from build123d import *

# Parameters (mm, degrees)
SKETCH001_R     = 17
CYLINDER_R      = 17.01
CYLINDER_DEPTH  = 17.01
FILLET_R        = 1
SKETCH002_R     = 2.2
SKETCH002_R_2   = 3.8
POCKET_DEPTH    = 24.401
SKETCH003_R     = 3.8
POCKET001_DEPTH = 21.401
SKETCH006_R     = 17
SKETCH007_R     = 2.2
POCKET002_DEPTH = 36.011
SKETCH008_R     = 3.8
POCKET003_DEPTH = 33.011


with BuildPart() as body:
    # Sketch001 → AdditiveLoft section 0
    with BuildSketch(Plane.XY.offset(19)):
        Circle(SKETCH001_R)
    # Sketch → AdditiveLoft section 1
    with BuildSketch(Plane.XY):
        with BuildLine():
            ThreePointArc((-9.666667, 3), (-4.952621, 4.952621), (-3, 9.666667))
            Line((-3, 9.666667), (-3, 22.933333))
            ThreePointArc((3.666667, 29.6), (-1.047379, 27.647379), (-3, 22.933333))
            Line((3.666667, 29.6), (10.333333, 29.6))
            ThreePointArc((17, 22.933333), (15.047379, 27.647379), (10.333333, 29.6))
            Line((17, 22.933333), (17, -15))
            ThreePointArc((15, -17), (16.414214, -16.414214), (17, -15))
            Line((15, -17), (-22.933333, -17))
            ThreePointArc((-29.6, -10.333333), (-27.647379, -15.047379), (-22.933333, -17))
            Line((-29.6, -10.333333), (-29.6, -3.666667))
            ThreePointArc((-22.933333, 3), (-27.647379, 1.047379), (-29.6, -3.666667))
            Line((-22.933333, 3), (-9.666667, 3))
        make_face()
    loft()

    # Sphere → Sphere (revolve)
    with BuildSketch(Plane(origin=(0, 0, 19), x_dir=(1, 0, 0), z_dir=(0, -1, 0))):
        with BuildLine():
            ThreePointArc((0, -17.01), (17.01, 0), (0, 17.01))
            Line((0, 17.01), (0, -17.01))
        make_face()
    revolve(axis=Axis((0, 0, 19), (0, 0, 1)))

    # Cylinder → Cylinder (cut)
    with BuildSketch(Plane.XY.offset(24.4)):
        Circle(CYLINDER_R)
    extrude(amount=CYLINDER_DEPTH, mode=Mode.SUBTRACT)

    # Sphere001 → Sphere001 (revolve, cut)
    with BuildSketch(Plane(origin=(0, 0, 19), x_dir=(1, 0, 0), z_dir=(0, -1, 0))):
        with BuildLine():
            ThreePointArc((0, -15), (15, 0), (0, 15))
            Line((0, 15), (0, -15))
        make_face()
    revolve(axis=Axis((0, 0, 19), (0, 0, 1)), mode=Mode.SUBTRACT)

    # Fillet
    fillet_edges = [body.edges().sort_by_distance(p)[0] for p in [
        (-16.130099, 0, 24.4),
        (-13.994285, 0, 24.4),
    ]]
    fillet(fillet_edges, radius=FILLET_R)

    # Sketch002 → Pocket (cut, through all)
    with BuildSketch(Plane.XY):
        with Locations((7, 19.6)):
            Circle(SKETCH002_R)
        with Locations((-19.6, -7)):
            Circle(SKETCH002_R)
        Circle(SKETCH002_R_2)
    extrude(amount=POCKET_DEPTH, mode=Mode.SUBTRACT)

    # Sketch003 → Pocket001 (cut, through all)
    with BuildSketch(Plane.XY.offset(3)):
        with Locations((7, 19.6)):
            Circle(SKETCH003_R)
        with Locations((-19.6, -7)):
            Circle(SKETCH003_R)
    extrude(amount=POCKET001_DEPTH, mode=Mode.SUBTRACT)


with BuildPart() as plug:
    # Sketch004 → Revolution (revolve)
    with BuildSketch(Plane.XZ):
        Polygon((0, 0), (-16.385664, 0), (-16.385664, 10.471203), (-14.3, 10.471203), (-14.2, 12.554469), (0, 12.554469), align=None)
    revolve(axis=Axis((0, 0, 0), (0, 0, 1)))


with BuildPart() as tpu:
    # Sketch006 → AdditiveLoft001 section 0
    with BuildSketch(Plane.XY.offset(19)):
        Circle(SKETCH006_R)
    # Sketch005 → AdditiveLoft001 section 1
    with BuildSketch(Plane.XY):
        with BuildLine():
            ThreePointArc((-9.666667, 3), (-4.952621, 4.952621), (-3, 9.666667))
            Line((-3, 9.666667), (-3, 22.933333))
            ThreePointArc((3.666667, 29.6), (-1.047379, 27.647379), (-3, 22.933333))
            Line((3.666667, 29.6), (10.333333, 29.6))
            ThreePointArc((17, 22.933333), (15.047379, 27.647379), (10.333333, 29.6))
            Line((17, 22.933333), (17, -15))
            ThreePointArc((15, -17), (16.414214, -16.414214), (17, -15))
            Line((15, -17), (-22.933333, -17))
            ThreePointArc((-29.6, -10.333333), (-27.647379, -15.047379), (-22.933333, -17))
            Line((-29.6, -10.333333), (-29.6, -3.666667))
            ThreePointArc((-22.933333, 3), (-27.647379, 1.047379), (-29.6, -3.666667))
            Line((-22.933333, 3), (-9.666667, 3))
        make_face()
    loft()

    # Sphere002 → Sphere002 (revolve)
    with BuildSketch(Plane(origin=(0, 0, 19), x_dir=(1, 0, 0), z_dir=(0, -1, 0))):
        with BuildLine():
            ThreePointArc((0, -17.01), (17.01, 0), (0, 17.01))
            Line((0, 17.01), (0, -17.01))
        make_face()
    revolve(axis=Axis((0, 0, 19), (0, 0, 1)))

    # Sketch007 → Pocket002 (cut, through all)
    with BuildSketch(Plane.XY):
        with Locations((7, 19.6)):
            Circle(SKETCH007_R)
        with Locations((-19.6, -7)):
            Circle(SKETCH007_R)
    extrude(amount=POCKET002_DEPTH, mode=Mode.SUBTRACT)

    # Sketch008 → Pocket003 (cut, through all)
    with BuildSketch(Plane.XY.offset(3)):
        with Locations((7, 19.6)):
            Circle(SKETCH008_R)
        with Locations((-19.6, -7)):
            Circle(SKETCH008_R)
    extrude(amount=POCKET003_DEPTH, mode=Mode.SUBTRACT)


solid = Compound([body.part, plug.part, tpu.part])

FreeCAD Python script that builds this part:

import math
import FreeCAD as App
import Part
import Sketcher
Q = App.Units.Quantity


def edges_at(feature, points):
    """Names of the edges that pass closest to the given points."""
    edges = feature.Shape.Edges
    near = lambda p: min(range(len(edges)), key=lambda i: edges[i].distToShape(Part.Vertex(*p))[0])
    return sorted({f"Edge{near(p) + 1}" for p in points})


def add_polygon(sketch, points):
    """Adds a closed chain of lines whose ends are joined by coincident constraints."""
    first, n = sketch.GeometryCount, len(points)
    for a, b in zip(points, points[1:] + points[:1]):
        sketch.addGeometry(Part.LineSegment(App.Vector(*a, 0), App.Vector(*b, 0)), False)
    for i in range(n):
        sketch.addConstraint(Sketcher.Constraint("Coincident", first + i, 2, first + (i + 1) % n, 1))

doc = App.newDocument("Part")
params = doc.addObject("Spreadsheet::Sheet", "Params")
for row, (alias, value) in enumerate([
    ("sketch1_diameter", "34 mm"),
    ("sketch2_radius", "1.999999 mm"),
    ("sketch3_radius", "17.01 mm"),
    ("revolution_angle", "360 deg"),
    ("sketch4_diameter", "34.02 mm"),
    ("pocket1_length", "17.01 mm"),
    ("sketch5_radius", "15 mm"),
    ("groove_angle", "360 deg"),
    ("fillet_radius", "1 mm"),
    ("sketch6_diameter", "4.4 mm"),
    ("sketch6_diameter2", "7.6 mm"),
    ("sketch7_diameter", "7.6 mm"),
    ("sketch8_width", "14.2 mm"),
    ("revolution2_angle", "360 deg"),
    ("sketch9_diameter", "34 mm"),
    ("sketch10_radius", "1.999999 mm"),
    ("sketch11_radius", "17.01 mm"),
    ("revolution3_angle", "360 deg"),
    ("sketch12_diameter", "4.4 mm"),
    ("sketch13_diameter", "7.6 mm"),
], start=1):
    params.set(f"A{row}", alias)
    params.set(f"B{row}", "=" + value)
    params.setAlias(f"B{row}", alias)

body = doc.addObject("PartDesign::Body", "Body")

# Sketch on XY plane
sketch1 = doc.addObject("Sketcher::SketchObject", "Sketch")
body.addObject(sketch1)
sketch1.AttachmentSupport = (doc.XY_Plane, [""])
sketch1.MapMode = "FlatFace"
sketch1.AttachmentOffset = App.Placement(App.Vector(0, 0, 19), App.Rotation())
sketch1.addGeometry(Part.Circle(App.Vector(0, 0, 0), App.Vector(0, 0, 1), 17), False)
sketch1.addConstraint(Sketcher.Constraint("Coincident", 0, 3, -1, 1))
sketch1.addConstraint(Sketcher.Constraint("Diameter", 0, Q("34 mm")))
sketch1.setExpression("Constraints[1]", "Params.sketch1_diameter")

# Sketch on XY plane
sketch2 = doc.addObject("Sketcher::SketchObject", "Sketch001")
body.addObject(sketch2)
sketch2.AttachmentSupport = (doc.XY_Plane, [""])
sketch2.MapMode = "FlatFace"
sketch2.addGeometry(Part.ArcOfCircle(Part.Circle(App.Vector(-9.7, 9.7, 0), App.Vector(0, 0, 1), 6.7), math.radians(-90), math.radians(0)), False)
sketch2.addGeometry(Part.LineSegment(App.Vector(-9.7, 3, 0), App.Vector(-22.9, 3, 0)), False)
sketch2.addGeometry(Part.ArcOfCircle(Part.Circle(App.Vector(-22.9, -3.7, 0), App.Vector(0, 0, 1), 6.7), math.radians(90), math.radians(180)), False)
sketch2.addGeometry(Part.LineSegment(App.Vector(-29.6, -3.7, 0), App.Vector(-29.6, -10.3, 0)), False)
sketch2.addGeometry(Part.ArcOfCircle(Part.Circle(App.Vector(-22.9, -10.3, 0), App.Vector(0, 0, 1), 6.7), math.radians(180), math.radians(270)), False)
sketch2.addGeometry(Part.LineSegment(App.Vector(-22.9, -17, 0), App.Vector(15, -17, 0)), False)
sketch2.addGeometry(Part.ArcOfCircle(Part.Circle(App.Vector(15, -15, 0), App.Vector(0, 0, 1), 2), math.radians(-90), math.radians(0)), False)
sketch2.addGeometry(Part.LineSegment(App.Vector(17, -15, 0), App.Vector(17, 22.9, 0)), False)
sketch2.addGeometry(Part.ArcOfCircle(Part.Circle(App.Vector(10.3, 22.9, 0), App.Vector(0, 0, 1), 6.7), math.radians(0), math.radians(90)), False)
sketch2.addGeometry(Part.LineSegment(App.Vector(10.3, 29.6, 0), App.Vector(3.7, 29.6, 0)), False)
sketch2.addGeometry(Part.ArcOfCircle(Part.Circle(App.Vector(3.7, 22.9, 0), App.Vector(0, 0, 1), 6.7), math.radians(90), math.radians(180)), False)
sketch2.addGeometry(Part.LineSegment(App.Vector(-3, 22.9, 0), App.Vector(-3, 9.7, 0)), False)
sketch2.addConstraint(Sketcher.Constraint("Tangent", 0, 1, 1, 1))
sketch2.addConstraint(Sketcher.Constraint("Tangent", 1, 2, 2, 1))
sketch2.addConstraint(Sketcher.Constraint("Tangent", 2, 2, 3, 1))
sketch2.addConstraint(Sketcher.Constraint("Tangent", 3, 2, 4, 1))
sketch2.addConstraint(Sketcher.Constraint("Tangent", 4, 2, 5, 1))
sketch2.addConstraint(Sketcher.Constraint("Tangent", 5, 2, 6, 1))
sketch2.addConstraint(Sketcher.Constraint("Tangent", 6, 2, 7, 1))
sketch2.addConstraint(Sketcher.Constraint("Tangent", 7, 2, 8, 1))
sketch2.addConstraint(Sketcher.Constraint("Tangent", 8, 2, 9, 1))
sketch2.addConstraint(Sketcher.Constraint("Tangent", 9, 2, 10, 1))
sketch2.addConstraint(Sketcher.Constraint("Tangent", 10, 2, 11, 1))
sketch2.addConstraint(Sketcher.Constraint("Tangent", 11, 2, 0, 2))
sketch2.addConstraint(Sketcher.Constraint("Horizontal", 1))
sketch2.addConstraint(Sketcher.Constraint("Vertical", 3))
sketch2.addConstraint(Sketcher.Constraint("Horizontal", 5))
sketch2.addConstraint(Sketcher.Constraint("Vertical", 7))
sketch2.addConstraint(Sketcher.Constraint("Horizontal", 9))
sketch2.addConstraint(Sketcher.Constraint("Vertical", 11))
sketch2.addConstraint(Sketcher.Constraint("Equal", 0, 2))
sketch2.addConstraint(Sketcher.Constraint("Equal", 2, 4))
sketch2.addConstraint(Sketcher.Constraint("Equal", 4, 8))
sketch2.addConstraint(Sketcher.Constraint("Equal", 8, 10))
sketch2.addConstraint(Sketcher.Constraint("Equal", 9, 3))
sketch2.addConstraint(Sketcher.Constraint("Equal", 5, 7))
sketch2.addConstraint(Sketcher.Constraint("Radius", 6, Q("1.999999 mm")))
sketch2.addConstraint(Sketcher.Constraint("DistanceX", -1, 1, 6, 3, Q("15.000001 mm")))
sketch2.addConstraint(Sketcher.Constraint("DistanceY", 6, 3, -1, 1, Q("15.000001 mm")))
sketch2.addConstraint(Sketcher.Constraint("DistanceY", -1, 1, 0, 1, Q("3 mm")))
sketch2.addConstraint(Sketcher.Constraint("DistanceX", 2, 2, -1, 1, Q("29.6 mm")))
sketch2.addConstraint(Sketcher.Constraint("Radius", 0, Q("6.666665 mm")))
sketch2.setExpression("Constraints[24]", "Params.sketch2_radius")

additiveloft = doc.addObject("PartDesign::AdditiveLoft", "AdditiveLoft")
body.addObject(additiveloft)
additiveloft.Profile = sketch1
additiveloft.Sections = [sketch2]

# Sketch on XZ plane
sketch3 = doc.addObject("Sketcher::SketchObject", "Sketch002")
body.addObject(sketch3)
sketch3.AttachmentSupport = (doc.XZ_Plane, [""])
sketch3.MapMode = "FlatFace"
sketch3.addGeometry(Part.ArcOfCircle(Part.Circle(App.Vector(0, 19, 0), App.Vector(0, 0, 1), 17), math.radians(-90), math.radians(90)), False)
sketch3.addGeometry(Part.LineSegment(App.Vector(0, 36, 0), App.Vector(0, 2, 0)), False)
sketch3.addConstraint(Sketcher.Constraint("Coincident", 0, 1, 1, 2))
sketch3.addConstraint(Sketcher.Constraint("Coincident", 1, 1, 0, 2))
sketch3.addConstraint(Sketcher.Constraint("Vertical", 1))
sketch3.addConstraint(Sketcher.Constraint("PointOnObject", 0, 3, -2))
sketch3.addConstraint(Sketcher.Constraint("PointOnObject", 0, 1, -2))
sketch3.addConstraint(Sketcher.Constraint("Radius", 0, Q("17.01 mm")))
sketch3.addConstraint(Sketcher.Constraint("DistanceY", -1, 1, 0, 3, Q("19 mm")))
sketch3.setExpression("Constraints[5]", "Params.sketch3_radius")
revolution = doc.addObject("PartDesign::Revolution", "Revolution")
body.addObject(revolution)
revolution.Profile = sketch3
revolution.ReferenceAxis = (sketch3, ["V_Axis"])
revolution.setExpression("Angle", "Params.revolution_angle")

# Sketch on XY plane
sketch4 = doc.addObject("Sketcher::SketchObject", "Sketch003")
body.addObject(sketch4)
sketch4.AttachmentSupport = (doc.XY_Plane, [""])
sketch4.MapMode = "FlatFace"
sketch4.AttachmentOffset = App.Placement(App.Vector(0, 0, 24.4), App.Rotation())
sketch4.addGeometry(Part.Circle(App.Vector(0, 0, 0), App.Vector(0, 0, 1), 17), False)
sketch4.addConstraint(Sketcher.Constraint("Coincident", 0, 3, -1, 1))
sketch4.addConstraint(Sketcher.Constraint("Diameter", 0, Q("34.02 mm")))
sketch4.setExpression("Constraints[1]", "Params.sketch4_diameter")
pocket1 = doc.addObject("PartDesign::Pocket", "Pocket")
body.addObject(pocket1)
pocket1.Profile = sketch4
pocket1.setExpression("Length", "Params.pocket1_length")
pocket1.Reversed = True

# Sketch on XZ plane
sketch5 = doc.addObject("Sketcher::SketchObject", "Sketch004")
body.addObject(sketch5)
sketch5.AttachmentSupport = (doc.XZ_Plane, [""])
sketch5.MapMode = "FlatFace"
sketch5.addGeometry(Part.ArcOfCircle(Part.Circle(App.Vector(0, 19, 0), App.Vector(0, 0, 1), 15), math.radians(-90), math.radians(90)), False)
sketch5.addGeometry(Part.LineSegment(App.Vector(0, 34, 0), App.Vector(0, 4, 0)), False)
sketch5.addConstraint(Sketcher.Constraint("Coincident", 0, 1, 1, 2))
sketch5.addConstraint(Sketcher.Constraint("Coincident", 1, 1, 0, 2))
sketch5.addConstraint(Sketcher.Constraint("Vertical", 1))
sketch5.addConstraint(Sketcher.Constraint("PointOnObject", 0, 3, -2))
sketch5.addConstraint(Sketcher.Constraint("PointOnObject", 0, 1, -2))
sketch5.addConstraint(Sketcher.Constraint("Radius", 0, Q("15 mm")))
sketch5.addConstraint(Sketcher.Constraint("DistanceY", -1, 1, 0, 3, Q("19 mm")))
sketch5.setExpression("Constraints[5]", "Params.sketch5_radius")
groove = doc.addObject("PartDesign::Groove", "Groove")
body.addObject(groove)
groove.Profile = sketch5
groove.ReferenceAxis = (sketch5, ["V_Axis"])
groove.setExpression("Angle", "Params.groove_angle")
doc.recompute()

fillet = doc.addObject("PartDesign::Fillet", "Fillet")
body.addObject(fillet)
fillet.Base = (groove, edges_at(groove, [(-16.13, 0, 24.4), (-13.994, 0, 24.4)]))
fillet.setExpression("Radius", "Params.fillet_radius")

# Sketch on XY plane
sketch6 = doc.addObject("Sketcher::SketchObject", "Sketch005")
body.addObject(sketch6)
sketch6.AttachmentSupport = (doc.XY_Plane, [""])
sketch6.MapMode = "FlatFace"
sketch6.addGeometry(Part.Circle(App.Vector(7, 19.6, 0), App.Vector(0, 0, 1), 2.2), False)
sketch6.addGeometry(Part.Circle(App.Vector(-19.6, -7, 0), App.Vector(0, 0, 1), 2.2), False)
sketch6.addGeometry(Part.Circle(App.Vector(0, 0, 0), App.Vector(0, 0, 1), 3.8), False)
sketch6.addConstraint(Sketcher.Constraint("Coincident", 2, 3, -1, 1))
sketch6.addConstraint(Sketcher.Constraint("Equal", 0, 1))
sketch6.addConstraint(Sketcher.Constraint("Diameter", 0, Q("4.4 mm")))
sketch6.addConstraint(Sketcher.Constraint("Diameter", 2, Q("7.6 mm")))
sketch6.addConstraint(Sketcher.Constraint("DistanceX", -1, 1, 0, 3, Q("7 mm")))
sketch6.addConstraint(Sketcher.Constraint("DistanceY", 1, 3, -1, 1, Q("7 mm")))
sketch6.addConstraint(Sketcher.Constraint("DistanceY", -1, 1, 0, 3, Q("19.6 mm")))
sketch6.addConstraint(Sketcher.Constraint("DistanceX", 1, 3, -1, 1, Q("19.6 mm")))
sketch6.setExpression("Constraints[2]", "Params.sketch6_diameter")
sketch6.setExpression("Constraints[3]", "Params.sketch6_diameter2")
pocket2 = doc.addObject("PartDesign::Pocket", "Pocket001")
body.addObject(pocket2)
pocket2.Profile = sketch6
pocket2.Type = "ThroughAll"
pocket2.Reversed = True

# Sketch on XY plane
sketch7 = doc.addObject("Sketcher::SketchObject", "Sketch006")
body.addObject(sketch7)
sketch7.AttachmentSupport = (doc.XY_Plane, [""])
sketch7.MapMode = "FlatFace"
sketch7.AttachmentOffset = App.Placement(App.Vector(0, 0, 3), App.Rotation())
sketch7.addGeometry(Part.Circle(App.Vector(7, 19.6, 0), App.Vector(0, 0, 1), 3.8), False)
sketch7.addGeometry(Part.Circle(App.Vector(-19.6, -7, 0), App.Vector(0, 0, 1), 3.8), False)
sketch7.addConstraint(Sketcher.Constraint("Equal", 0, 1))
sketch7.addConstraint(Sketcher.Constraint("Diameter", 0, Q("7.6 mm")))
sketch7.addConstraint(Sketcher.Constraint("DistanceX", -1, 1, 0, 3, Q("7 mm")))
sketch7.addConstraint(Sketcher.Constraint("DistanceY", 1, 3, -1, 1, Q("7 mm")))
sketch7.addConstraint(Sketcher.Constraint("DistanceY", -1, 1, 0, 3, Q("19.6 mm")))
sketch7.addConstraint(Sketcher.Constraint("DistanceX", 1, 3, -1, 1, Q("19.6 mm")))
sketch7.setExpression("Constraints[1]", "Params.sketch7_diameter")
pocket3 = doc.addObject("PartDesign::Pocket", "Pocket002")
body.addObject(pocket3)
pocket3.Profile = sketch7
pocket3.Type = "ThroughAll"
pocket3.Reversed = True
body2 = doc.addObject("PartDesign::Body", "Body001")

# Sketch on XZ plane
sketch8 = doc.addObject("Sketcher::SketchObject", "Sketch007")
body2.addObject(sketch8)
sketch8.AttachmentSupport = (doc.getObject("XZ_Plane001"), [""])
sketch8.MapMode = "FlatFace"
add_polygon(sketch8, [(-16.4, 0), (0, 0), (0, 12.6), (-14.2, 12.6), (-14.3, 10.5), (-16.4, 10.5)])  # lines 0-5
sketch8.addConstraint(Sketcher.Constraint("Horizontal", 0))
sketch8.addConstraint(Sketcher.Constraint("Vertical", 1))
sketch8.addConstraint(Sketcher.Constraint("Horizontal", 2))
sketch8.addConstraint(Sketcher.Constraint("Horizontal", 4))
sketch8.addConstraint(Sketcher.Constraint("Vertical", 5))
sketch8.addConstraint(Sketcher.Constraint("Coincident", 0, 2, -1, 1))
sketch8.addConstraint(Sketcher.Constraint("DistanceX", 2, 2, 2, 1, Q("14.2 mm")))
sketch8.addConstraint(Sketcher.Constraint("DistanceX", 3, 2, -1, 1, Q("14.3 mm")))
sketch8.addConstraint(Sketcher.Constraint("DistanceY", 1, 1, 1, 2, Q("12.554469 mm")))
sketch8.addConstraint(Sketcher.Constraint("DistanceX", 0, 1, 0, 2, Q("16.385664 mm")))
sketch8.addConstraint(Sketcher.Constraint("DistanceY", 5, 2, 5, 1, Q("10.471203 mm")))
sketch8.setExpression("Constraints[12]", "Params.sketch8_width")
revolution2 = doc.addObject("PartDesign::Revolution", "Revolution001")
body2.addObject(revolution2)
revolution2.Profile = sketch8
revolution2.ReferenceAxis = (sketch8, ["V_Axis"])
revolution2.setExpression("Angle", "Params.revolution2_angle")
body3 = doc.addObject("PartDesign::Body", "Body002")

# Sketch on XY plane
sketch9 = doc.addObject("Sketcher::SketchObject", "Sketch008")
body3.addObject(sketch9)
sketch9.AttachmentSupport = (doc.getObject("XY_Plane002"), [""])
sketch9.MapMode = "FlatFace"
sketch9.AttachmentOffset = App.Placement(App.Vector(0, 0, 19), App.Rotation())
sketch9.addGeometry(Part.Circle(App.Vector(0, 0, 0), App.Vector(0, 0, 1), 17), False)
sketch9.addConstraint(Sketcher.Constraint("Coincident", 0, 3, -1, 1))
sketch9.addConstraint(Sketcher.Constraint("Diameter", 0, Q("34 mm")))
sketch9.setExpression("Constraints[1]", "Params.sketch9_diameter")

# Sketch on XY plane
sketch10 = doc.addObject("Sketcher::SketchObject", "Sketch009")
body3.addObject(sketch10)
sketch10.AttachmentSupport = (doc.getObject("XY_Plane002"), [""])
sketch10.MapMode = "FlatFace"
sketch10.addGeometry(Part.ArcOfCircle(Part.Circle(App.Vector(-9.7, 9.7, 0), App.Vector(0, 0, 1), 6.7), math.radians(-90), math.radians(0)), False)
sketch10.addGeometry(Part.LineSegment(App.Vector(-9.7, 3, 0), App.Vector(-22.9, 3, 0)), False)
sketch10.addGeometry(Part.ArcOfCircle(Part.Circle(App.Vector(-22.9, -3.7, 0), App.Vector(0, 0, 1), 6.7), math.radians(90), math.radians(180)), False)
sketch10.addGeometry(Part.LineSegment(App.Vector(-29.6, -3.7, 0), App.Vector(-29.6, -10.3, 0)), False)
sketch10.addGeometry(Part.ArcOfCircle(Part.Circle(App.Vector(-22.9, -10.3, 0), App.Vector(0, 0, 1), 6.7), math.radians(180), math.radians(270)), False)
sketch10.addGeometry(Part.LineSegment(App.Vector(-22.9, -17, 0), App.Vector(15, -17, 0)), False)
sketch10.addGeometry(Part.ArcOfCircle(Part.Circle(App.Vector(15, -15, 0), App.Vector(0, 0, 1), 2), math.radians(-90), math.radians(0)), False)
sketch10.addGeometry(Part.LineSegment(App.Vector(17, -15, 0), App.Vector(17, 22.9, 0)), False)
sketch10.addGeometry(Part.ArcOfCircle(Part.Circle(App.Vector(10.3, 22.9, 0), App.Vector(0, 0, 1), 6.7), math.radians(0), math.radians(90)), False)
sketch10.addGeometry(Part.LineSegment(App.Vector(10.3, 29.6, 0), App.Vector(3.7, 29.6, 0)), False)
sketch10.addGeometry(Part.ArcOfCircle(Part.Circle(App.Vector(3.7, 22.9, 0), App.Vector(0, 0, 1), 6.7), math.radians(90), math.radians(180)), False)
sketch10.addGeometry(Part.LineSegment(App.Vector(-3, 22.9, 0), App.Vector(-3, 9.7, 0)), False)
sketch10.addConstraint(Sketcher.Constraint("Tangent", 0, 1, 1, 1))
sketch10.addConstraint(Sketcher.Constraint("Tangent", 1, 2, 2, 1))
sketch10.addConstraint(Sketcher.Constraint("Tangent", 2, 2, 3, 1))
sketch10.addConstraint(Sketcher.Constraint("Tangent", 3, 2, 4, 1))
sketch10.addConstraint(Sketcher.Constraint("Tangent", 4, 2, 5, 1))
sketch10.addConstraint(Sketcher.Constraint("Tangent", 5, 2, 6, 1))
sketch10.addConstraint(Sketcher.Constraint("Tangent", 6, 2, 7, 1))
sketch10.addConstraint(Sketcher.Constraint("Tangent", 7, 2, 8, 1))
sketch10.addConstraint(Sketcher.Constraint("Tangent", 8, 2, 9, 1))
sketch10.addConstraint(Sketcher.Constraint("Tangent", 9, 2, 10, 1))
sketch10.addConstraint(Sketcher.Constraint("Tangent", 10, 2, 11, 1))
sketch10.addConstraint(Sketcher.Constraint("Tangent", 11, 2, 0, 2))
sketch10.addConstraint(Sketcher.Constraint("Horizontal", 1))
sketch10.addConstraint(Sketcher.Constraint("Vertical", 3))
sketch10.addConstraint(Sketcher.Constraint("Horizontal", 5))
sketch10.addConstraint(Sketcher.Constraint("Vertical", 7))
sketch10.addConstraint(Sketcher.Constraint("Horizontal", 9))
sketch10.addConstraint(Sketcher.Constraint("Vertical", 11))
sketch10.addConstraint(Sketcher.Constraint("Equal", 0, 2))
sketch10.addConstraint(Sketcher.Constraint("Equal", 2, 4))
sketch10.addConstraint(Sketcher.Constraint("Equal", 4, 8))
sketch10.addConstraint(Sketcher.Constraint("Equal", 8, 10))
sketch10.addConstraint(Sketcher.Constraint("Equal", 9, 3))
sketch10.addConstraint(Sketcher.Constraint("Equal", 5, 7))
sketch10.addConstraint(Sketcher.Constraint("Radius", 6, Q("1.999999 mm")))
sketch10.addConstraint(Sketcher.Constraint("DistanceX", -1, 1, 6, 3, Q("15.000001 mm")))
sketch10.addConstraint(Sketcher.Constraint("DistanceY", 6, 3, -1, 1, Q("15.000001 mm")))
sketch10.addConstraint(Sketcher.Constraint("DistanceY", -1, 1, 0, 1, Q("3 mm")))
sketch10.addConstraint(Sketcher.Constraint("DistanceX", 2, 2, -1, 1, Q("29.6 mm")))
sketch10.addConstraint(Sketcher.Constraint("Radius", 0, Q("6.666665 mm")))
sketch10.setExpression("Constraints[24]", "Params.sketch10_radius")

additiveloft2 = doc.addObject("PartDesign::AdditiveLoft", "AdditiveLoft001")
body3.addObject(additiveloft2)
additiveloft2.Profile = sketch9
additiveloft2.Sections = [sketch10]

# Sketch on XZ plane
sketch11 = doc.addObject("Sketcher::SketchObject", "Sketch010")
body3.addObject(sketch11)
sketch11.AttachmentSupport = (doc.getObject("XZ_Plane002"), [""])
sketch11.MapMode = "FlatFace"
sketch11.addGeometry(Part.ArcOfCircle(Part.Circle(App.Vector(0, 19, 0), App.Vector(0, 0, 1), 17), math.radians(-90), math.radians(90)), False)
sketch11.addGeometry(Part.LineSegment(App.Vector(0, 36, 0), App.Vector(0, 2, 0)), False)
sketch11.addConstraint(Sketcher.Constraint("Coincident", 0, 1, 1, 2))
sketch11.addConstraint(Sketcher.Constraint("Coincident", 1, 1, 0, 2))
sketch11.addConstraint(Sketcher.Constraint("Vertical", 1))
sketch11.addConstraint(Sketcher.Constraint("PointOnObject", 0, 3, -2))
sketch11.addConstraint(Sketcher.Constraint("PointOnObject", 0, 1, -2))
sketch11.addConstraint(Sketcher.Constraint("Radius", 0, Q("17.01 mm")))
sketch11.addConstraint(Sketcher.Constraint("DistanceY", -1, 1, 0, 3, Q("19 mm")))
sketch11.setExpression("Constraints[5]", "Params.sketch11_radius")
revolution3 = doc.addObject("PartDesign::Revolution", "Revolution002")
body3.addObject(revolution3)
revolution3.Profile = sketch11
revolution3.ReferenceAxis = (sketch11, ["V_Axis"])
revolution3.setExpression("Angle", "Params.revolution3_angle")

# Sketch on XY plane
sketch12 = doc.addObject("Sketcher::SketchObject", "Sketch011")
body3.addObject(sketch12)
sketch12.AttachmentSupport = (doc.getObject("XY_Plane002"), [""])
sketch12.MapMode = "FlatFace"
sketch12.addGeometry(Part.Circle(App.Vector(7, 19.6, 0), App.Vector(0, 0, 1), 2.2), False)
sketch12.addGeometry(Part.Circle(App.Vector(-19.6, -7, 0), App.Vector(0, 0, 1), 2.2), False)
sketch12.addConstraint(Sketcher.Constraint("Equal", 0, 1))
sketch12.addConstraint(Sketcher.Constraint("Diameter", 0, Q("4.4 mm")))
sketch12.addConstraint(Sketcher.Constraint("DistanceX", -1, 1, 0, 3, Q("7 mm")))
sketch12.addConstraint(Sketcher.Constraint("DistanceY", 1, 3, -1, 1, Q("7 mm")))
sketch12.addConstraint(Sketcher.Constraint("DistanceY", -1, 1, 0, 3, Q("19.6 mm")))
sketch12.addConstraint(Sketcher.Constraint("DistanceX", 1, 3, -1, 1, Q("19.6 mm")))
sketch12.setExpression("Constraints[1]", "Params.sketch12_diameter")
pocket4 = doc.addObject("PartDesign::Pocket", "Pocket003")
body3.addObject(pocket4)
pocket4.Profile = sketch12
pocket4.Type = "ThroughAll"
pocket4.Reversed = True

# Sketch on XY plane
sketch13 = doc.addObject("Sketcher::SketchObject", "Sketch012")
body3.addObject(sketch13)
sketch13.AttachmentSupport = (doc.getObject("XY_Plane002"), [""])
sketch13.MapMode = "FlatFace"
sketch13.AttachmentOffset = App.Placement(App.Vector(0, 0, 3), App.Rotation())
sketch13.addGeometry(Part.Circle(App.Vector(7, 19.6, 0), App.Vector(0, 0, 1), 3.8), False)
sketch13.addGeometry(Part.Circle(App.Vector(-19.6, -7, 0), App.Vector(0, 0, 1), 3.8), False)
sketch13.addConstraint(Sketcher.Constraint("Equal", 0, 1))
sketch13.addConstraint(Sketcher.Constraint("Diameter", 0, Q("7.6 mm")))
sketch13.addConstraint(Sketcher.Constraint("DistanceX", -1, 1, 0, 3, Q("7 mm")))
sketch13.addConstraint(Sketcher.Constraint("DistanceY", 1, 3, -1, 1, Q("7 mm")))
sketch13.addConstraint(Sketcher.Constraint("DistanceY", -1, 1, 0, 3, Q("19.6 mm")))
sketch13.addConstraint(Sketcher.Constraint("DistanceX", 1, 3, -1, 1, Q("19.6 mm")))
sketch13.setExpression("Constraints[1]", "Params.sketch13_diameter")
pocket5 = doc.addObject("PartDesign::Pocket", "Pocket004")
body3.addObject(pocket5)
pocket5.Profile = sketch13
pocket5.Type = "ThroughAll"
pocket5.Reversed = True

doc.recompute()
